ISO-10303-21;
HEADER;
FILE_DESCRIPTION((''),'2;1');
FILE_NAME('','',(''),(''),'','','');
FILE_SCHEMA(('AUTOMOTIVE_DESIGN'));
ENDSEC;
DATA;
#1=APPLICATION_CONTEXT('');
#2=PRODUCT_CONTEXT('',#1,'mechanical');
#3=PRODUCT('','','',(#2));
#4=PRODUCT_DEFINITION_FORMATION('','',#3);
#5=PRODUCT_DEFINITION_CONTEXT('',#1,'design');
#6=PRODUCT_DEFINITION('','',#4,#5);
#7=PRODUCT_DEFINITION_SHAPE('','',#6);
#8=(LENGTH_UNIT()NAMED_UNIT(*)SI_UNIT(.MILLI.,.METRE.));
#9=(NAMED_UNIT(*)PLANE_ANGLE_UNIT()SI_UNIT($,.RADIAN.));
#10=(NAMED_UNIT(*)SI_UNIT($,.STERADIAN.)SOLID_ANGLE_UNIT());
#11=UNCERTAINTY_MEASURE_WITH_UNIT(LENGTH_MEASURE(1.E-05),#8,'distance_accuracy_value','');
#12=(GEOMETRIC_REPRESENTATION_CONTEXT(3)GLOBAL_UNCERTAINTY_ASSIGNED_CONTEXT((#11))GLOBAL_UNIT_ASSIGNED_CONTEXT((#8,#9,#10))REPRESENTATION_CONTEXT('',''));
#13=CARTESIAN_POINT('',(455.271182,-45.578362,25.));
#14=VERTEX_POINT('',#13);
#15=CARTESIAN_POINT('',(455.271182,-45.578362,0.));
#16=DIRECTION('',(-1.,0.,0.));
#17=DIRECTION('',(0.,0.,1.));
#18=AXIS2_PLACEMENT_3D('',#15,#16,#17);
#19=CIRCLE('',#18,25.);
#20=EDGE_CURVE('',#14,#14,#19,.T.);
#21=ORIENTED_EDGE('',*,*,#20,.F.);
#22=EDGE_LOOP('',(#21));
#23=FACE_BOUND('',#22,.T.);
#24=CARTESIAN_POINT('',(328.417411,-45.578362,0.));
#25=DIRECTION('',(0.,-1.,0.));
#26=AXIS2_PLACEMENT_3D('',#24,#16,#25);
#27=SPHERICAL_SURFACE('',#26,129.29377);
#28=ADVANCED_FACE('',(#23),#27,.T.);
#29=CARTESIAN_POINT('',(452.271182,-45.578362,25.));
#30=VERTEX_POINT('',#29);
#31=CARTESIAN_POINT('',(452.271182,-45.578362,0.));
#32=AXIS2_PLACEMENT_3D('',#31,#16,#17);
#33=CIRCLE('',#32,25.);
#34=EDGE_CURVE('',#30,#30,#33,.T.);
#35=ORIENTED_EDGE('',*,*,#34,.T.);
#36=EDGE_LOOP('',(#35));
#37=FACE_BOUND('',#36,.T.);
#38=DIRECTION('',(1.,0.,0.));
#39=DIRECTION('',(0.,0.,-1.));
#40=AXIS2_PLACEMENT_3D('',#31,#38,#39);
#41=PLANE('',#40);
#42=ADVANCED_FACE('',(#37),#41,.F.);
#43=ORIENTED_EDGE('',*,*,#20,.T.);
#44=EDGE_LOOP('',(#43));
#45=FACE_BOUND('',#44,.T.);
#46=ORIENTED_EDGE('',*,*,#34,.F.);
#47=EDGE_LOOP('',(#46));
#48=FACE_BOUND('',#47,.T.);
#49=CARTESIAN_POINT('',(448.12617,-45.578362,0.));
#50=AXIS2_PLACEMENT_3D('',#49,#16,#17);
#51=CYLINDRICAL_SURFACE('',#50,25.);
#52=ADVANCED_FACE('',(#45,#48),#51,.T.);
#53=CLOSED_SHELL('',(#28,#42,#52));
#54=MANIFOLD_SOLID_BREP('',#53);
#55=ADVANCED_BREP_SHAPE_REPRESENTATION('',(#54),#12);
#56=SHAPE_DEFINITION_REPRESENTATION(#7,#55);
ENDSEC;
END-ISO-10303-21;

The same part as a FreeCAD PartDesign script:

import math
import FreeCAD as App
import Part
import Sketcher

V = App.Vector
Q = App.Units.Quantity

doc = App.newDocument("Part")
body = doc.addObject("PartDesign::Body", "Body")

sketch1 = body.newObject("Sketcher::SketchObject", "Sketch")
sketch1.AttachmentSupport = (doc.getObject("XY_Plane"), [""])
sketch1.MapMode = "FlatFace"
sketch1.addGeometry([
    Part.LineSegment(V(452.3, -20.6, 0), V(452.3, -45.6, 0)),
    Part.LineSegment(V(452.3, -45.6, 0), V(457.7, -45.6, 0)),
    Part.ArcOfCircle(Part.Circle(V(328.4, -45.6, 0), V(0, 0, 1), 129.3), math.radians(0), math.radians(11.15)),
    Part.LineSegment(V(455.3, -20.6, 0), V(452.3, -20.6, 0)),
], False)
sketch1.addGeometry(Part.LineSegment(V(328.4, -45.6, 0), V(457.7, -45.6, 0)), True)
sketch1.addConstraint([
    Sketcher.Constraint("Coincident", 0, 2, 1, 1),
    Sketcher.Constraint("Coincident", 1, 2, 2, 1),
    Sketcher.Constraint("Coincident", 2, 2, 3, 1),
    Sketcher.Constraint("Coincident", 3, 2, 0, 1),
    Sketcher.Constraint("Vertical", 0),
    Sketcher.Constraint("Horizontal", 1),
    Sketcher.Constraint("Horizontal", 3),
    Sketcher.Constraint("Horizontal", 4),
    Sketcher.Constraint("Coincident", 4, 1, 2, 3),
    Sketcher.Constraint("Coincident", 4, 2, 1, 2),
    Sketcher.Constraint("DistanceX", 3, 2, 3, 1, Q("3 mm")),
    Sketcher.Constraint("DistanceY", 0, 2, 0, 1, Q("25 mm")),
    Sketcher.Constraint("DistanceX", 1, 1, 1, 2, Q("5.44 mm")),
    Sketcher.Constraint("DistanceX", -1, 1, 2, 3, Q("328.417411 mm")),
    Sketcher.Constraint("DistanceY", 2, 3, -1, 1, Q("45.578362 mm")),
])
revolution = body.newObject("PartDesign::Revolution", "Revolution")
revolution.Profile = sketch1
revolution.ReferenceAxis = (sketch1, ["Axis0"])
revolution.Angle = 360

doc.recompute()
